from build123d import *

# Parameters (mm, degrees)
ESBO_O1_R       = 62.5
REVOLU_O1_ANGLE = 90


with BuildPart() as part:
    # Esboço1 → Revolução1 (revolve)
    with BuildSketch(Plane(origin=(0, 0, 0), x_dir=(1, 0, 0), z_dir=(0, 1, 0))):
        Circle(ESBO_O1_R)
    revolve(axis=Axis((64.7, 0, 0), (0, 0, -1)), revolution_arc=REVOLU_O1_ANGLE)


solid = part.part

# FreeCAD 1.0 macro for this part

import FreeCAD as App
import Part
import Sketcher
Q = App.Units.Quantity

doc = App.newDocument("Part")
body = doc.addObject("PartDesign::Body", "Body")

# Sketch on XZ plane
sketch1 = body.newObject("Sketcher::SketchObject", "Sketch")
sketch1.AttachmentSupport = (doc.getObject("XZ_Plane"), [""])
sketch1.MapMode = "FlatFace"
sketch1.addGeometry(Part.Circle(App.Vector(0, 0, 0), App.Vector(0, 0, 1), 62.5), False)
sketch1.addGeometry(Part.LineSegment(App.Vector(64.7, 0, 0), App.Vector(64.7, -10, 0)), True)  # axis
sketch1.addConstraint([
    Sketcher.Constraint("Vertical", 1),
    Sketcher.Constraint("Coincident", 0, 3, -1, 1),
    Sketcher.Constraint("PointOnObject", 1, 1, -1),
    Sketcher.Constraint("Diameter", 0, Q("125 mm")),
    Sketcher.Constraint("DistanceY", 1, 2, 1, 1, Q("10 mm")),
    Sketcher.Constraint("DistanceX", -1, 1, 1, 1, Q("64.7 mm")),
])
revolution = body.newObject("PartDesign::Revolution", "Revolution")
revolution.Profile = sketch1
revolution.ReferenceAxis = (sketch1, ["Axis0"])
revolution.Angle = 90

doc.recompute()
